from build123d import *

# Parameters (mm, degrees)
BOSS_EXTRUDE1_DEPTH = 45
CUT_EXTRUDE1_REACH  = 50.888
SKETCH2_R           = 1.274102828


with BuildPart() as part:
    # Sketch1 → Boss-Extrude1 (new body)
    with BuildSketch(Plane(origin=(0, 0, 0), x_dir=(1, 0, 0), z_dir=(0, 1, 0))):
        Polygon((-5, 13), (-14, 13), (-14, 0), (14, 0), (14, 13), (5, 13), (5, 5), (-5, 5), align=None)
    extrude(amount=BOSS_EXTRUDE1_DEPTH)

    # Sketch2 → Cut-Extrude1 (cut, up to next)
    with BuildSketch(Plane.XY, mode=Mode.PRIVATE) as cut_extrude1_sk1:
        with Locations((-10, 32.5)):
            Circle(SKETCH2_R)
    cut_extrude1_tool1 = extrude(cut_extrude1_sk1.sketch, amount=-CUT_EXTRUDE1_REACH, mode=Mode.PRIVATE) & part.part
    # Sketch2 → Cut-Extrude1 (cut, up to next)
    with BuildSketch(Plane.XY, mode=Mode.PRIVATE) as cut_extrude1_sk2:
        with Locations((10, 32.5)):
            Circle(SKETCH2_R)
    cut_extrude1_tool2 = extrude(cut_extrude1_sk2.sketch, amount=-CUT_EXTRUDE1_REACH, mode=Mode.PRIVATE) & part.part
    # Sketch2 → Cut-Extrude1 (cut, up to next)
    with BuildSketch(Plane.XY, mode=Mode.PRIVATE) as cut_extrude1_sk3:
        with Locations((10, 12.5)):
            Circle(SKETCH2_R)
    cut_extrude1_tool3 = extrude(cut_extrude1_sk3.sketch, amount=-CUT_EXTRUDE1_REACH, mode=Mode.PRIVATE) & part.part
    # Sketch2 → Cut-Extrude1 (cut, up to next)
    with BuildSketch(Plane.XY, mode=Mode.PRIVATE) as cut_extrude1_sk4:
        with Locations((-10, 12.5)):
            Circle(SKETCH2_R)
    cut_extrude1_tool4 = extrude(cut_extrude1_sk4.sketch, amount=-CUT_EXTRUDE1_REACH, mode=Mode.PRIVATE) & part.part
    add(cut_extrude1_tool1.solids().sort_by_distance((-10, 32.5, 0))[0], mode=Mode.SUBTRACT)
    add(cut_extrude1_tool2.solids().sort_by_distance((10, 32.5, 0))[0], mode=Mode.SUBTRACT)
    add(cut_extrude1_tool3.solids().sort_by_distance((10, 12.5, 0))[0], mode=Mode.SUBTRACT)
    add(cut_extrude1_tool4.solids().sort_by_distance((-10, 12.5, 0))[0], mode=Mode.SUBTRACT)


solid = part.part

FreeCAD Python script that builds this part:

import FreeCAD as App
import Part
import Sketcher

V = App.Vector
Q = App.Units.Quantity

doc = App.newDocument("Part")
body = doc.addObject("PartDesign::Body", "Body")

# Sketch on XZ plane
sketch1 = body.newObject("Sketcher::SketchObject", "Sketch")
sketch1.AttachmentSupport = (doc.getObject("XZ_Plane"), [""])
sketch1.MapMode = "FlatFace"
sketch1.addGeometry([
    Part.LineSegment(V(-5, -13, 0), V(-14, -13, 0)),  # 0
    Part.LineSegment(V(-14, -13, 0), V(-14, 0, 0)),  # 1
    Part.LineSegment(V(-14, 0, 0), V(14, 0, 0)),  # 2
    Part.LineSegment(V(14, 0, 0), V(14, -13, 0)),  # 3
    Part.LineSegment(V(14, -13, 0), V(5, -13, 0)),  # 4
    Part.LineSegment(V(5, -13, 0), V(5, -5, 0)),  # 5
    Part.LineSegment(V(5, -5, 0), V(-5, -5, 0)),  # 6
    Part.LineSegment(V(-5, -5, 0), V(-5, -13, 0)),  # 7
], False)
sketch1.addConstraint([
    Sketcher.Constraint("Coincident", 0, 2, 1, 1),
    Sketcher.Constraint("Coincident", 1, 2, 2, 1),
    Sketcher.Constraint("Coincident", 2, 2, 3, 1),
    Sketcher.Constraint("Coincident", 3, 2, 4, 1),
    Sketcher.Constraint("Coincident", 4, 2, 5, 1),
    Sketcher.Constraint("Coincident", 5, 2, 6, 1),
    Sketcher.Constraint("Coincident", 6, 2, 7, 1),
    Sketcher.Constraint("Coincident", 7, 2, 0, 1),
    Sketcher.Constraint("Horizontal", 0),
    Sketcher.Constraint("Vertical", 1),
    Sketcher.Constraint("Horizontal", 2),
    Sketcher.Constraint("Vertical", 3),
    Sketcher.Constraint("Horizontal", 4),
    Sketcher.Constraint("Vertical", 5),
    Sketcher.Constraint("Horizontal", 6),
    Sketcher.Constraint("Vertical", 7),
    Sketcher.Constraint("Symmetric", 1, 2, 2, 2, -1, 1),
    Sketcher.Constraint("Symmetric", 4, 2, 7, 2, -2),
    Sketcher.Constraint("DistanceX", 0, 2, 0, 1, Q("9 mm")),
    Sketcher.Constraint("DistanceX", 2, 1, 2, 2, Q("28 mm")),
    Sketcher.Constraint("DistanceY", 1, 1, 1, 2, Q("13 mm")),
    Sketcher.Constraint("DistanceY", 5, 1, 5, 2, Q("8 mm")),
])
pad1 = body.newObject("PartDesign::Pad", "Pad")
pad1.Profile = sketch1
pad1.Length = 45
pad1.Reversed = True

# Sketch on XY plane
sketch2 = body.newObject("Sketcher::SketchObject", "Sketch001")
sketch2.AttachmentSupport = (doc.getObject("XY_Plane"), [""])
sketch2.MapMode = "FlatFace"
sketch2.addGeometry(Part.Circle(V(-10, 32.5, 0), V(0, 0, 1), 1.274103), False)
sketch2.addConstraint([
    Sketcher.Constraint("DistanceX", 0, 3, -1, 1, Q("10 mm")),
    Sketcher.Constraint("DistanceY", -1, 1, 0, 3, Q("32.5 mm")),
    Sketcher.Constraint("Diameter", 0, Q("2.548206 mm")),
])
pocket1 = body.newObject("PartDesign::Pocket", "Pocket")
pocket1.Profile = sketch2
pocket1.Type = "UpToFirst"

# Sketch on XY plane
sketch3 = body.newObject("Sketcher::SketchObject", "Sketch002")
sketch3.AttachmentSupport = (doc.getObject("XY_Plane"), [""])
sketch3.MapMode = "FlatFace"
sketch3.addGeometry(Part.Circle(V(10, 32.5, 0), V(0, 0, 1), 1.274103), False)
sketch3.addConstraint([
    Sketcher.Constraint("DistanceX", -1, 1, 0, 3, Q("10 mm")),
    Sketcher.Constraint("DistanceY", -1, 1, 0, 3, Q("32.5 mm")),
    Sketcher.Constraint("Diameter", 0, Q("2.548206 mm")),
])
pocket2 = body.newObject("PartDesign::Pocket", "Pocket001")
pocket2.Profile = sketch3
pocket2.Type = "UpToFirst"

# Sketch on XY plane
sketch4 = body.newObject("Sketcher::SketchObject", "Sketch003")
sketch4.AttachmentSupport = (doc.getObject("XY_Plane"), [""])
sketch4.MapMode = "FlatFace"
sketch4.addGeometry(Part.Circle(V(10, 12.5, 0), V(0, 0, 1), 1.274103), False)
sketch4.addConstraint([
    Sketcher.Constraint("DistanceX", -1, 1, 0, 3, Q("10 mm")),
    Sketcher.Constraint("DistanceY", -1, 1, 0, 3, Q("12.5 mm")),
    Sketcher.Constraint("Diameter", 0, Q("2.548206 mm")),
])
pocket3 = body.newObject("PartDesign::Pocket", "Pocket002")
pocket3.Profile = sketch4
pocket3.Type = "UpToFirst"

# Sketch on XY plane
sketch5 = body.newObject("Sketcher::SketchObject", "Sketch004")
sketch5.AttachmentSupport = (doc.getObject("XY_Plane"), [""])
sketch5.MapMode = "FlatFace"
sketch5.addGeometry(Part.Circle(V(-10, 12.5, 0), V(0, 0, 1), 1.274103), False)
sketch5.addConstraint([
    Sketcher.Constraint("DistanceX", 0, 3, -1, 1, Q("10 mm")),
    Sketcher.Constraint("DistanceY", -1, 1, 0, 3, Q("12.5 mm")),
    Sketcher.Constraint("Diameter", 0, Q("2.548206 mm")),
])
pocket4 = body.newObject("PartDesign::Pocket", "Pocket003")
pocket4.Profile = sketch5
pocket4.Type = "UpToFirst"

doc.recompute()
